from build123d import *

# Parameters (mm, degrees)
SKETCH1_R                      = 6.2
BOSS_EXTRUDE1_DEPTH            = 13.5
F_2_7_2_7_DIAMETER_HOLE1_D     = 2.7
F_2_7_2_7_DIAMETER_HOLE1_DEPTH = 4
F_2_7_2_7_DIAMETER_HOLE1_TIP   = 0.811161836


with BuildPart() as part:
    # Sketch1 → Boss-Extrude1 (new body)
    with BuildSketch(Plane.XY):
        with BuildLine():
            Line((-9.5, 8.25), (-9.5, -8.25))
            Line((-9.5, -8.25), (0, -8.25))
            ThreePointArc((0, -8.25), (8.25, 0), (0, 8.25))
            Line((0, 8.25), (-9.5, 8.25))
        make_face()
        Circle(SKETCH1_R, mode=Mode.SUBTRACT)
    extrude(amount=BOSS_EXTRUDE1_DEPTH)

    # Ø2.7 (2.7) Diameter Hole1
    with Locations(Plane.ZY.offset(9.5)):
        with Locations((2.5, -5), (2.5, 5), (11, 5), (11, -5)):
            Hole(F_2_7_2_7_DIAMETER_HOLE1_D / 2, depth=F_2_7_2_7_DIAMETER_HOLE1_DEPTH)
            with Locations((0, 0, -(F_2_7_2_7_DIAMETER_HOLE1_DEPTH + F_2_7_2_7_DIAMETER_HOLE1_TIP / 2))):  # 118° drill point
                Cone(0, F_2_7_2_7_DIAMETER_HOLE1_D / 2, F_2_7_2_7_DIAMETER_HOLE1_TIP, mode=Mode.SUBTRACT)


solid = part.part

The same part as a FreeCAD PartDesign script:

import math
import FreeCAD as App
import Part
import Sketcher

V = App.Vector
Q = App.Units.Quantity

doc = App.newDocument("Part")
params = doc.addObject("Spreadsheet::Sheet", "Params")
for row, (alias, value) in enumerate([
    ("sketch1_diameter", "12.4 mm"),
    ("sketch1_radius", "8.25 mm"),
    ("sketch1_width", "9.5 mm"),
    ("pad1_length", "13.5 mm"),
    ("sketch2_diameter", "2.7 mm"),
    ("hole_diameter", "2.7 mm"),
    ("hole_depth", "4 mm"),
], start=1):
    params.set(f"A{row}", alias)
    params.set(f"B{row}", "=" + value)
    params.setAlias(f"B{row}", alias)

body = doc.addObject("PartDesign::Body", "Body")

sketch1 = body.newObject("Sketcher::SketchObject", "Sketch")
sketch1.AttachmentSupport = (doc.getObject("XY_Plane"), [""])
sketch1.MapMode = "FlatFace"
sketch1.addGeometry([
    Part.LineSegment(V(-10, 8, 0), V(-10, -8, 0)),
    Part.LineSegment(V(-10, -8, 0), V(0, -8, 0)),
    Part.ArcOfCircle(Part.Circle(V(0, 0, 0), V(0, 0, 1), 8), math.radians(-90), math.radians(90)),
    Part.LineSegment(V(0, 8, 0), V(-10, 8, 0)),
    Part.Circle(V(0, 0, 0), V(0, 0, 1), 6),
], False)
sketch1.addConstraint([
    Sketcher.Constraint("Coincident", 0, 2, 1, 1),
    Sketcher.Constraint("Tangent", 1, 2, 2, 1),
    Sketcher.Constraint("Tangent", 2, 2, 3, 1),
    Sketcher.Constraint("Coincident", 3, 2, 0, 1),
    Sketcher.Constraint("Vertical", 0),
    Sketcher.Constraint("Horizontal", 1),
    Sketcher.Constraint("Horizontal", 3),
    Sketcher.Constraint("Coincident", 2, 3, -1, 1),
    Sketcher.Constraint("Coincident", 4, 3, -1, 1),
    Sketcher.Constraint("Diameter", 4, Q("12.4 mm")),
    Sketcher.Constraint("Radius", 2, Q("8.25 mm")),
    Sketcher.Constraint("DistanceX", 1, 1, 1, 2, Q("9.5 mm")),
])
sketch1.setExpression("Constraints[9]", "Params.sketch1_diameter")
sketch1.setExpression("Constraints[10]", "Params.sketch1_radius")
sketch1.setExpression("Constraints[11]", "Params.sketch1_width")
pad1 = body.newObject("PartDesign::Pad", "Pad")
pad1.Profile = sketch1
pad1.setExpression("Length", "Params.pad1_length")

sketch2 = body.newObject("Sketcher::SketchObject", "Sketch001")
sketch2.AttachmentSupport = (doc.getObject("YZ_Plane"), [""])
sketch2.MapMode = "FlatFace"
sketch2.AttachmentOffset = App.Placement(V(0, 0, -9.5), App.Rotation())
sketch2.addGeometry([
    Part.Circle(V(-5, 2.5, 0), V(0, 0, 1), 1.4),
    Part.Circle(V(5, 2.5, 0), V(0, 0, 1), 1.4),
    Part.Circle(V(5, 11, 0), V(0, 0, 1), 1.4),
    Part.Circle(V(-5, 11, 0), V(0, 0, 1), 1.4),
], False)
sketch2.addConstraint([
    Sketcher.Constraint("Equal", 0, 1),
    Sketcher.Constraint("Equal", 1, 2),
    Sketcher.Constraint("Equal", 2, 3),
    Sketcher.Constraint("Symmetric", 0, 3, 1, 3, -2),
    Sketcher.Constraint("Symmetric", 2, 3, 3, 3, -2),
    Sketcher.Constraint("Vertical", 1, 3, 2, 3),
    Sketcher.Constraint("Diameter", 0, Q("2.7 mm")),
    Sketcher.Constraint("DistanceX", 0, 3, -1, 1, Q("5 mm")),
    Sketcher.Constraint("DistanceY", -1, 1, 2, 3, Q("11 mm")),
    Sketcher.Constraint("DistanceY", -1, 1, 0, 3, Q("2.5 mm")),
])
sketch2.setExpression("Constraints[6]", "Params.sketch2_diameter")
doc.recompute()
hole = body.newObject("PartDesign::Hole", "Hole")
hole.Profile = sketch2
hole.ThreadType = "None"
hole.setExpression("Diameter", "Params.hole_diameter")
hole.DepthType = "Dimension"
hole.setExpression("Depth", "Params.hole_depth")
hole.DrillPoint = "Angled"
hole.DrillPointAngle = 118
hole.Reversed = True

doc.recompute()
